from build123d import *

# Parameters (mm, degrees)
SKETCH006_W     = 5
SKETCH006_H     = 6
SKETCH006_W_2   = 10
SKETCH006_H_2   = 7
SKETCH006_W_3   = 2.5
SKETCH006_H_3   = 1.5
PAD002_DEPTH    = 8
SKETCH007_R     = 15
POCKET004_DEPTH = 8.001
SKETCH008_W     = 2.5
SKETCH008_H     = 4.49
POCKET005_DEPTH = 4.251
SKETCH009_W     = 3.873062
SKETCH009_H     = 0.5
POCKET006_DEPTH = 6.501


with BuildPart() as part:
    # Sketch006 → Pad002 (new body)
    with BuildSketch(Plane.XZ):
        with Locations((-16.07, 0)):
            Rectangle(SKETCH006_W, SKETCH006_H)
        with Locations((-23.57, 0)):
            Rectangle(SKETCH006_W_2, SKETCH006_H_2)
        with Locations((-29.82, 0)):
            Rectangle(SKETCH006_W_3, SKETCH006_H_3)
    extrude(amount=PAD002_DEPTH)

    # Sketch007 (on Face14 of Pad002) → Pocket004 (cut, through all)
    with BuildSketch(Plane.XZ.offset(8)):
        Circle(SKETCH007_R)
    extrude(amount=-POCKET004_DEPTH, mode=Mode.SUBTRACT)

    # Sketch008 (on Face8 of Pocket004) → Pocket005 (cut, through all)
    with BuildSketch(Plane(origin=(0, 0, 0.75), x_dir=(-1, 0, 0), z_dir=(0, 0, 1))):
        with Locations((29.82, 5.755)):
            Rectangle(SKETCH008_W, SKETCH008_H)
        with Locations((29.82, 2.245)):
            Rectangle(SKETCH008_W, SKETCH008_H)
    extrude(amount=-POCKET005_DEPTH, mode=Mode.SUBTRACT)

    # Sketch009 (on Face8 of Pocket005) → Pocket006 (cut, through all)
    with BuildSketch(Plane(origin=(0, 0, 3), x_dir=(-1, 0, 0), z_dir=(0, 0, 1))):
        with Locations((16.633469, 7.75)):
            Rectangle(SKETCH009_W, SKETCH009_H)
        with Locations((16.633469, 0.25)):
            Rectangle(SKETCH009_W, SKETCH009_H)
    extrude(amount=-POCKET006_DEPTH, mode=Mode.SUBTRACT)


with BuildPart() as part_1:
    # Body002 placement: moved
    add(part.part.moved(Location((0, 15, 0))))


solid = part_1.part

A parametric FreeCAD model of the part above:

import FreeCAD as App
import Part
import Sketcher
from FreeCAD import Vector

doc = App.newDocument("Part")
params = doc.addObject("Spreadsheet::Sheet", "Params")
for row, (alias, value) in enumerate([
    ("sketch1_width", "5 mm"),
    ("sketch1_width2", "10 mm"),
    ("sketch1_height", "6 mm"),
    ("sketch1_width3", "2.5 mm"),
    ("sketch1_height2", "0.5 mm"),
    ("pad1_length", "8 mm"),
    ("sketch2_diameter", "30 mm"),
    ("sketch3_height", "8 mm"),
    ("sketch3_width", "2.5 mm"),
    ("sketch4_height", "0.5 mm"),
], start=1):
    params.set(f"A{row}", alias)
    params.set(f"B{row}", "=" + value)
    params.setAlias(f"B{row}", alias)

body = doc.addObject("PartDesign::Body", "Body")

# Sketch on XZ plane
sketch1 = body.newObject("Sketcher::SketchObject", "Sketch")
sketch1.AttachmentSupport = (doc.getObject("XZ_Plane"), [""])
sketch1.MapMode = "FlatFace"
sketch1.addGeometry(Part.LineSegment(Vector(-18.6, -3, 0), Vector(-13.6, -3, 0)), False)
sketch1.addGeometry(Part.LineSegment(Vector(-13.6, -3, 0), Vector(-13.6, 3, 0)), False)
sketch1.addGeometry(Part.LineSegment(Vector(-13.6, 3, 0), Vector(-18.6, 3, 0)), False)
sketch1.addGeometry(Part.LineSegment(Vector(-18.6, 3, 0), Vector(-18.6, 3.5, 0)), False)
sketch1.addGeometry(Part.LineSegment(Vector(-18.6, 3.5, 0), Vector(-28.6, 3.5, 0)), False)
sketch1.addGeometry(Part.LineSegment(Vector(-28.6, 3.5, 0), Vector(-28.6, 0.8, 0)), False)
sketch1.addGeometry(Part.LineSegment(Vector(-28.6, 0.8, 0), Vector(-31.1, 0.8, 0)), False)
sketch1.addGeometry(Part.LineSegment(Vector(-31.1, 0.8, 0), Vector(-31.1, -0.8, 0)), False)
sketch1.addGeometry(Part.LineSegment(Vector(-31.1, -0.8, 0), Vector(-28.6, -0.8, 0)), False)
sketch1.addGeometry(Part.LineSegment(Vector(-28.6, -0.8, 0), Vector(-28.6, -3.5, 0)), False)
sketch1.addGeometry(Part.LineSegment(Vector(-28.6, -3.5, 0), Vector(-18.6, -3.5, 0)), False)
sketch1.addGeometry(Part.LineSegment(Vector(-18.6, -3.5, 0), Vector(-18.6, -3, 0)), False)
sketch1.addConstraint(Sketcher.Constraint("Coincident", 0, 2, 1, 1))
sketch1.addConstraint(Sketcher.Constraint("Coincident", 1, 2, 2, 1))
sketch1.addConstraint(Sketcher.Constraint("Coincident", 2, 2, 3, 1))
sketch1.addConstraint(Sketcher.Constraint("Coincident", 3, 2, 4, 1))
sketch1.addConstraint(Sketcher.Constraint("Coincident", 4, 2, 5, 1))
sketch1.addConstraint(Sketcher.Constraint("Coincident", 5, 2, 6, 1))
sketch1.addConstraint(Sketcher.Constraint("Coincident", 6, 2, 7, 1))
sketch1.addConstraint(Sketcher.Constraint("Coincident", 7, 2, 8, 1))
sketch1.addConstraint(Sketcher.Constraint("Coincident", 8, 2, 9, 1))
sketch1.addConstraint(Sketcher.Constraint("Coincident", 9, 2, 10, 1))
sketch1.addConstraint(Sketcher.Constraint("Coincident", 10, 2, 11, 1))
sketch1.addConstraint(Sketcher.Constraint("Coincident", 11, 2, 0, 1))
sketch1.addConstraint(Sketcher.Constraint("Horizontal", 0))
sketch1.addConstraint(Sketcher.Constraint("Vertical", 1))
sketch1.addConstraint(Sketcher.Constraint("Horizontal", 2))
sketch1.addConstraint(Sketcher.Constraint("Vertical", 3))
sketch1.addConstraint(Sketcher.Constraint("Horizontal", 4))
sketch1.addConstraint(Sketcher.Constraint("Vertical", 5))
sketch1.addConstraint(Sketcher.Constraint("Horizontal", 6))
sketch1.addConstraint(Sketcher.Constraint("Vertical", 7))
sketch1.addConstraint(Sketcher.Constraint("Horizontal", 8))
sketch1.addConstraint(Sketcher.Constraint("Vertical", 9))
sketch1.addConstraint(Sketcher.Constraint("Horizontal", 10))
sketch1.addConstraint(Sketcher.Constraint("Vertical", 11))
sketch1.addConstraint(Sketcher.Constraint("Symmetric", 5, 2, 8, 2, -1))
sketch1.addConstraint(Sketcher.Constraint("Symmetric", 3, 2, 10, 2, -1))
sketch1.addConstraint(Sketcher.Constraint("Equal", 3, 11))
sketch1.addConstraint(Sketcher.Constraint("DistanceX", 0, 1, 0, 2, 5.0))
sketch1.addConstraint(Sketcher.Constraint("DistanceX", 4, 2, 4, 1, 10.0))
sketch1.addConstraint(Sketcher.Constraint("DistanceY", 1, 1, 1, 2, 6.0))
sketch1.addConstraint(Sketcher.Constraint("DistanceX", 6, 2, 6, 1, 2.5))
sketch1.addConstraint(Sketcher.Constraint("DistanceY", 3, 1, 3, 2, 0.5))
sketch1.addConstraint(Sketcher.Constraint("DistanceY", 7, 2, 7, 1, 1.5))
sketch1.addConstraint(Sketcher.Constraint("DistanceX", 0, 2, -1, 1, 13.57))
sketch1.setExpression("Constraints[27]", "Params.sketch1_width")
sketch1.setExpression("Constraints[28]", "Params.sketch1_width2")
sketch1.setExpression("Constraints[29]", "Params.sketch1_height")
sketch1.setExpression("Constraints[30]", "Params.sketch1_width3")
sketch1.setExpression("Constraints[31]", "Params.sketch1_height2")
pad1 = body.newObject("PartDesign::Pad", "Pad")
pad1.Profile = sketch1
pad1.setExpression("Length", "Params.pad1_length")

# Sketch on XZ plane
sketch2 = body.newObject("Sketcher::SketchObject", "Sketch001")
sketch2.AttachmentSupport = (doc.getObject("XZ_Plane"), [""])
sketch2.MapMode = "FlatFace"
sketch2.AttachmentOffset = App.Placement(Vector(0, 0, 8), App.Rotation())
sketch2.addGeometry(Part.Circle(Vector(0, 0, 0), Vector(0, 0, 1), 15), False)
sketch2.addConstraint(Sketcher.Constraint("Coincident", 0, 3, -1, 1))
sketch2.addConstraint(Sketcher.Constraint("Diameter", 0, 30.0))
sketch2.setExpression("Constraints[1]", "Params.sketch2_diameter")
pocket1 = body.newObject("PartDesign::Pocket", "Pocket")
pocket1.Profile = sketch2
pocket1.Type = "ThroughAll"

# Sketch on XY plane
sketch3 = body.newObject("Sketcher::SketchObject", "Sketch002")
sketch3.AttachmentSupport = (doc.getObject("XY_Plane"), [""])
sketch3.MapMode = "FlatFace"
sketch3.AttachmentOffset = App.Placement(Vector(0, 0, 0.75), App.Rotation())
sketch3.addGeometry(Part.LineSegment(Vector(-28.6, 0, 0), Vector(-31.1, 0, 0)), False)
sketch3.addGeometry(Part.LineSegment(Vector(-31.1, 0, 0), Vector(-31.1, -8, 0)), False)
sketch3.addGeometry(Part.LineSegment(Vector(-31.1, -8, 0), Vector(-28.6, -8, 0)), False)
sketch3.addGeometry(Part.LineSegment(Vector(-28.6, -8, 0), Vector(-28.6, 0, 0)), False)
sketch3.addConstraint(Sketcher.Constraint("Coincident", 0, 2, 1, 1))
sketch3.addConstraint(Sketcher.Constraint("Coincident", 1, 2, 2, 1))
sketch3.addConstraint(Sketcher.Constraint("Coincident", 2, 2, 3, 1))
sketch3.addConstraint(Sketcher.Constraint("Coincident", 3, 2, 0, 1))
sketch3.addConstraint(Sketcher.Constraint("Horizontal", 0))
sketch3.addConstraint(Sketcher.Constraint("Vertical", 1))
sketch3.addConstraint(Sketcher.Constraint("Horizontal", 2))
sketch3.addConstraint(Sketcher.Constraint("Vertical", 3))
sketch3.addConstraint(Sketcher.Constraint("PointOnObject", 0, 2, -1))
sketch3.addConstraint(Sketcher.Constraint("DistanceY", 1, 2, 1, 1, 8.0))
sketch3.addConstraint(Sketcher.Constraint("DistanceX", 0, 2, 0, 1, 2.5))
sketch3.addConstraint(Sketcher.Constraint("DistanceX", 0, 2, -1, 1, 31.07))
sketch3.setExpression("Constraints[9]", "Params.sketch3_height")
sketch3.setExpression("Constraints[10]", "Params.sketch3_width")
pocket2 = body.newObject("PartDesign::Pocket", "Pocket001")
pocket2.Profile = sketch3
pocket2.Type = "ThroughAll"

# Sketch on XY plane
sketch4 = body.newObject("Sketcher::SketchObject", "Sketch003")
sketch4.AttachmentSupport = (doc.getObject("XY_Plane"), [""])
sketch4.MapMode = "FlatFace"
sketch4.AttachmentOffset = App.Placement(Vector(0, 0, 3), App.Rotation())
sketch4.addGeometry(Part.LineSegment(Vector(-14.7, -8, 0), Vector(-14.7, -7.5, 0)), False)
sketch4.addGeometry(Part.LineSegment(Vector(-14.7, -7.5, 0), Vector(-18.6, -7.5, 0)), False)
sketch4.addGeometry(Part.LineSegment(Vector(-18.6, -7.5, 0), Vector(-18.6, -8, 0)), False)
sketch4.addGeometry(Part.LineSegment(Vector(-18.6, -8, 0), Vector(-14.7, -8, 0)), False)
sketch4.addGeometry(Part.LineSegment(Vector(-14.7, -0.5, 0), Vector(-14.7, 0, 0)), False)
sketch4.addGeometry(Part.LineSegment(Vector(-14.7, 0, 0), Vector(-18.6, 0, 0)), False)
sketch4.addGeometry(Part.LineSegment(Vector(-18.6, 0, 0), Vector(-18.6, -0.5, 0)), False)
sketch4.addGeometry(Part.LineSegment(Vector(-18.6, -0.5, 0), Vector(-14.7, -0.5, 0)), False)
sketch4.addConstraint(Sketcher.Constraint("Coincident", 0, 2, 1, 1))
sketch4.addConstraint(Sketcher.Constraint("Coincident", 1, 2, 2, 1))
sketch4.addConstraint(Sketcher.Constraint("Coincident", 2, 2, 3, 1))
sketch4.addConstraint(Sketcher.Constraint("Coincident", 3, 2, 0, 1))
sketch4.addConstraint(Sketcher.Constraint("Coincident", 4, 2, 5, 1))
sketch4.addConstraint(Sketcher.Constraint("Coincident", 5, 2, 6, 1))
sketch4.addConstraint(Sketcher.Constraint("Coincident", 6, 2, 7, 1))
sketch4.addConstraint(Sketcher.Constraint("Coincident", 7, 2, 4, 1))
sketch4.addConstraint(Sketcher.Constraint("Vertical", 0))
sketch4.addConstraint(Sketcher.Constraint("Horizontal", 1))
sketch4.addConstraint(Sketcher.Constraint("Vertical", 2))
sketch4.addConstraint(Sketcher.Constraint("Horizontal", 3))
sketch4.addConstraint(Sketcher.Constraint("Vertical", 4))
sketch4.addConstraint(Sketcher.Constraint("Horizontal", 5))
sketch4.addConstraint(Sketcher.Constraint("Vertical", 6))
sketch4.addConstraint(Sketcher.Constraint("Horizontal", 7))
sketch4.addConstraint(Sketcher.Constraint("PointOnObject", 4, 2, -1))
sketch4.addConstraint(Sketcher.Constraint("Vertical", 3, 2, 4, 2))
sketch4.addConstraint(Sketcher.Constraint("Vertical", 2, 2, 5, 2))
sketch4.addConstraint(Sketcher.Constraint("Equal", 2, 4))
sketch4.addConstraint(Sketcher.Constraint("DistanceY", 0, 1, 0, 2, 0.5))
sketch4.addConstraint(Sketcher.Constraint("DistanceY", 2, 2, -1, 1, 8.0))
sketch4.addConstraint(Sketcher.Constraint("DistanceX", 1, 2, -1, 1, 18.57))
sketch4.addConstraint(Sketcher.Constraint("DistanceX", 1, 2, 1, 1, 3.873062))
sketch4.setExpression("Constraints[20]", "Params.sketch4_height")
pocket3 = body.newObject("PartDesign::Pocket", "Pocket002")
pocket3.Profile = sketch4
pocket3.Type = "ThroughAll"
body2 = doc.addObject("PartDesign::Body", "Body001")
doc.recompute()

body.Placement = App.Placement(Vector(0, 15, 0), App.Rotation(Vector(0, 0, 1), 0))
boolean = body2.newObject("PartDesign::Boolean", "Boolean")
boolean.Type = "Fuse"
boolean.addObjects([body])

doc.recompute()
